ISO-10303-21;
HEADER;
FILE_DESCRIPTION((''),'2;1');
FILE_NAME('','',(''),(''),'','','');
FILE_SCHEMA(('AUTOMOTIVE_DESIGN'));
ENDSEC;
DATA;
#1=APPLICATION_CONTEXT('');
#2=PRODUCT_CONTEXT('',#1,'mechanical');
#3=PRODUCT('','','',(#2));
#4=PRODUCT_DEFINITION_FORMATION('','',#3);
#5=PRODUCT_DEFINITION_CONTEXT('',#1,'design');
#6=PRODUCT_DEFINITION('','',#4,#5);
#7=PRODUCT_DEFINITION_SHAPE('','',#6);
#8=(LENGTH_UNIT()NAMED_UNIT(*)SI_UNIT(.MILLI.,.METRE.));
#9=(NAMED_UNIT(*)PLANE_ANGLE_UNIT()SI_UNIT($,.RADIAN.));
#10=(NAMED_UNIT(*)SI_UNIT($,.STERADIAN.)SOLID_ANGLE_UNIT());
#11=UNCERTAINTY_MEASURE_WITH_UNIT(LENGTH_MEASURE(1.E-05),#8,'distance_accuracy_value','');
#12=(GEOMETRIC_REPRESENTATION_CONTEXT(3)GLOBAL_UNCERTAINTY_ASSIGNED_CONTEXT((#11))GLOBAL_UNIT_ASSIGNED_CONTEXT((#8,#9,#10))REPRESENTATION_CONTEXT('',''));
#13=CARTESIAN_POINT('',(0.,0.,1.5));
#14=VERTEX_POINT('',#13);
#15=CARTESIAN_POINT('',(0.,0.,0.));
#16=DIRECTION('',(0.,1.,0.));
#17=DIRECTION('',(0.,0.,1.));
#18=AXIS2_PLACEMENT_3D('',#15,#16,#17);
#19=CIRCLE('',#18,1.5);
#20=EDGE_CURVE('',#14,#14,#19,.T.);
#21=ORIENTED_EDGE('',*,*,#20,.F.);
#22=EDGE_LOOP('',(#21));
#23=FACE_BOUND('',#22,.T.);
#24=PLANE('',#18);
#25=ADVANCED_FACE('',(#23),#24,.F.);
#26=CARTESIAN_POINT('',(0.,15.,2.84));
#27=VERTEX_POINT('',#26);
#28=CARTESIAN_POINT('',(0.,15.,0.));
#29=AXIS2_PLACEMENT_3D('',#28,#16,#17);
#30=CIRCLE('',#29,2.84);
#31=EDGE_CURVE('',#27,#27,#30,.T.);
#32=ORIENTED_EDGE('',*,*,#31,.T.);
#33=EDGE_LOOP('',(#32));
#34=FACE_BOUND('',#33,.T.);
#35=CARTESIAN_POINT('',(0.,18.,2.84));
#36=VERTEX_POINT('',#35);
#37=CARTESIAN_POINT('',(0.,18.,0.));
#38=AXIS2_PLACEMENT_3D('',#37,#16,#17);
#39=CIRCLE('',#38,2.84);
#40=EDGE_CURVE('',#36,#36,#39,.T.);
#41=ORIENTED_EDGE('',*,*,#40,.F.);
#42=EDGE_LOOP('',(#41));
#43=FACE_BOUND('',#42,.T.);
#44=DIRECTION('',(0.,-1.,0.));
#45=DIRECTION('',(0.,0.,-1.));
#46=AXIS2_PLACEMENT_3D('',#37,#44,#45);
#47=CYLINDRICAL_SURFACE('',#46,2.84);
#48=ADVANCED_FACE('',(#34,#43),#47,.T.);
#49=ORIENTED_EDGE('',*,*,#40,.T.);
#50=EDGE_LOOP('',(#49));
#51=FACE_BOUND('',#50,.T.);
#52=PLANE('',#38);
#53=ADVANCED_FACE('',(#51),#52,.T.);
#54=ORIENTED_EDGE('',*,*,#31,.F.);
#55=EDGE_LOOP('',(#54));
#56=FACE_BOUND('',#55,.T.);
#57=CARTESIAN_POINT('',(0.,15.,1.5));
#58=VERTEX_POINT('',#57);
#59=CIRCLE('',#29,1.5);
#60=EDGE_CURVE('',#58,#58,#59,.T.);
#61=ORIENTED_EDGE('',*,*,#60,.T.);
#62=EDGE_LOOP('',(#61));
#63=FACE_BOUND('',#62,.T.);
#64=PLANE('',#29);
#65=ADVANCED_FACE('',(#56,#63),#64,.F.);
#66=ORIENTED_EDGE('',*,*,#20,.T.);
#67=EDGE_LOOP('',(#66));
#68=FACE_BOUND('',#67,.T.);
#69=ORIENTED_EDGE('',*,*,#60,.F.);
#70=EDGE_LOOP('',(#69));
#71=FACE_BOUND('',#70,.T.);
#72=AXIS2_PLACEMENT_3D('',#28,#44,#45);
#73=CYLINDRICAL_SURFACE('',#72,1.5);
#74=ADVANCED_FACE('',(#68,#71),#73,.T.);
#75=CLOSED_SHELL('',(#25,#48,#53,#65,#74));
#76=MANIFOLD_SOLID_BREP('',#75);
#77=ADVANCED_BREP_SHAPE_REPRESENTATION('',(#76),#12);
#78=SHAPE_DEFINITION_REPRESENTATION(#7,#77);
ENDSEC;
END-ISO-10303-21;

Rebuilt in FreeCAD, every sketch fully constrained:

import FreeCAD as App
import Part
import Sketcher
Q = App.Units.Quantity

doc = App.newDocument("Part")
params = doc.addObject("Spreadsheet::Sheet", "Params")
for row, (alias, value) in enumerate([
    ("sketch1_diameter", "3 mm"),
    ("pad1_length", "15 mm"),
    ("sketch2_diameter", "5.68 mm"),
    ("pad2_length", "3 mm"),
], start=1):
    params.set(f"A{row}", alias)
    params.set(f"B{row}", "=" + value)
    params.setAlias(f"B{row}", alias)

body = doc.addObject("PartDesign::Body", "Body")

# Sketch on XZ plane
sketch1 = body.newObject("Sketcher::SketchObject", "Sketch")
sketch1.AttachmentSupport = (doc.getObject("XZ_Plane"), [""])
sketch1.MapMode = "FlatFace"
sketch1.addGeometry(Part.Circle(App.Vector(0, 0, 0), App.Vector(0, 0, 1), 1.5), False)
sketch1.addConstraint([
    Sketcher.Constraint("Coincident", 0, 3, -1, 1),
    Sketcher.Constraint("Diameter", 0, Q("3 mm")),
])
sketch1.setExpression("Constraints[1]", "Params.sketch1_diameter")
pad1 = body.newObject("PartDesign::Pad", "Pad")
pad1.Profile = sketch1
pad1.setExpression("Length", "Params.pad1_length")
pad1.Reversed = True

# Sketch on XZ plane
sketch2 = body.newObject("Sketcher::SketchObject", "Sketch001")
sketch2.AttachmentSupport = (doc.getObject("XZ_Plane"), [""])
sketch2.MapMode = "FlatFace"
sketch2.AttachmentOffset = App.Placement(App.Vector(0, 0, -15), App.Rotation())
sketch2.addGeometry(Part.Circle(App.Vector(0, 0, 0), App.Vector(0, 0, 1), 2.8), False)
sketch2.addConstraint([
    Sketcher.Constraint("Coincident", 0, 3, -1, 1),
    Sketcher.Constraint("Diameter", 0, Q("5.68 mm")),
])
sketch2.setExpression("Constraints[1]", "Params.sketch2_diameter")
pad2 = body.newObject("PartDesign::Pad", "Pad001")
pad2.Profile = sketch2
pad2.setExpression("Length", "Params.pad2_length")
pad2.Reversed = True

doc.recompute()
